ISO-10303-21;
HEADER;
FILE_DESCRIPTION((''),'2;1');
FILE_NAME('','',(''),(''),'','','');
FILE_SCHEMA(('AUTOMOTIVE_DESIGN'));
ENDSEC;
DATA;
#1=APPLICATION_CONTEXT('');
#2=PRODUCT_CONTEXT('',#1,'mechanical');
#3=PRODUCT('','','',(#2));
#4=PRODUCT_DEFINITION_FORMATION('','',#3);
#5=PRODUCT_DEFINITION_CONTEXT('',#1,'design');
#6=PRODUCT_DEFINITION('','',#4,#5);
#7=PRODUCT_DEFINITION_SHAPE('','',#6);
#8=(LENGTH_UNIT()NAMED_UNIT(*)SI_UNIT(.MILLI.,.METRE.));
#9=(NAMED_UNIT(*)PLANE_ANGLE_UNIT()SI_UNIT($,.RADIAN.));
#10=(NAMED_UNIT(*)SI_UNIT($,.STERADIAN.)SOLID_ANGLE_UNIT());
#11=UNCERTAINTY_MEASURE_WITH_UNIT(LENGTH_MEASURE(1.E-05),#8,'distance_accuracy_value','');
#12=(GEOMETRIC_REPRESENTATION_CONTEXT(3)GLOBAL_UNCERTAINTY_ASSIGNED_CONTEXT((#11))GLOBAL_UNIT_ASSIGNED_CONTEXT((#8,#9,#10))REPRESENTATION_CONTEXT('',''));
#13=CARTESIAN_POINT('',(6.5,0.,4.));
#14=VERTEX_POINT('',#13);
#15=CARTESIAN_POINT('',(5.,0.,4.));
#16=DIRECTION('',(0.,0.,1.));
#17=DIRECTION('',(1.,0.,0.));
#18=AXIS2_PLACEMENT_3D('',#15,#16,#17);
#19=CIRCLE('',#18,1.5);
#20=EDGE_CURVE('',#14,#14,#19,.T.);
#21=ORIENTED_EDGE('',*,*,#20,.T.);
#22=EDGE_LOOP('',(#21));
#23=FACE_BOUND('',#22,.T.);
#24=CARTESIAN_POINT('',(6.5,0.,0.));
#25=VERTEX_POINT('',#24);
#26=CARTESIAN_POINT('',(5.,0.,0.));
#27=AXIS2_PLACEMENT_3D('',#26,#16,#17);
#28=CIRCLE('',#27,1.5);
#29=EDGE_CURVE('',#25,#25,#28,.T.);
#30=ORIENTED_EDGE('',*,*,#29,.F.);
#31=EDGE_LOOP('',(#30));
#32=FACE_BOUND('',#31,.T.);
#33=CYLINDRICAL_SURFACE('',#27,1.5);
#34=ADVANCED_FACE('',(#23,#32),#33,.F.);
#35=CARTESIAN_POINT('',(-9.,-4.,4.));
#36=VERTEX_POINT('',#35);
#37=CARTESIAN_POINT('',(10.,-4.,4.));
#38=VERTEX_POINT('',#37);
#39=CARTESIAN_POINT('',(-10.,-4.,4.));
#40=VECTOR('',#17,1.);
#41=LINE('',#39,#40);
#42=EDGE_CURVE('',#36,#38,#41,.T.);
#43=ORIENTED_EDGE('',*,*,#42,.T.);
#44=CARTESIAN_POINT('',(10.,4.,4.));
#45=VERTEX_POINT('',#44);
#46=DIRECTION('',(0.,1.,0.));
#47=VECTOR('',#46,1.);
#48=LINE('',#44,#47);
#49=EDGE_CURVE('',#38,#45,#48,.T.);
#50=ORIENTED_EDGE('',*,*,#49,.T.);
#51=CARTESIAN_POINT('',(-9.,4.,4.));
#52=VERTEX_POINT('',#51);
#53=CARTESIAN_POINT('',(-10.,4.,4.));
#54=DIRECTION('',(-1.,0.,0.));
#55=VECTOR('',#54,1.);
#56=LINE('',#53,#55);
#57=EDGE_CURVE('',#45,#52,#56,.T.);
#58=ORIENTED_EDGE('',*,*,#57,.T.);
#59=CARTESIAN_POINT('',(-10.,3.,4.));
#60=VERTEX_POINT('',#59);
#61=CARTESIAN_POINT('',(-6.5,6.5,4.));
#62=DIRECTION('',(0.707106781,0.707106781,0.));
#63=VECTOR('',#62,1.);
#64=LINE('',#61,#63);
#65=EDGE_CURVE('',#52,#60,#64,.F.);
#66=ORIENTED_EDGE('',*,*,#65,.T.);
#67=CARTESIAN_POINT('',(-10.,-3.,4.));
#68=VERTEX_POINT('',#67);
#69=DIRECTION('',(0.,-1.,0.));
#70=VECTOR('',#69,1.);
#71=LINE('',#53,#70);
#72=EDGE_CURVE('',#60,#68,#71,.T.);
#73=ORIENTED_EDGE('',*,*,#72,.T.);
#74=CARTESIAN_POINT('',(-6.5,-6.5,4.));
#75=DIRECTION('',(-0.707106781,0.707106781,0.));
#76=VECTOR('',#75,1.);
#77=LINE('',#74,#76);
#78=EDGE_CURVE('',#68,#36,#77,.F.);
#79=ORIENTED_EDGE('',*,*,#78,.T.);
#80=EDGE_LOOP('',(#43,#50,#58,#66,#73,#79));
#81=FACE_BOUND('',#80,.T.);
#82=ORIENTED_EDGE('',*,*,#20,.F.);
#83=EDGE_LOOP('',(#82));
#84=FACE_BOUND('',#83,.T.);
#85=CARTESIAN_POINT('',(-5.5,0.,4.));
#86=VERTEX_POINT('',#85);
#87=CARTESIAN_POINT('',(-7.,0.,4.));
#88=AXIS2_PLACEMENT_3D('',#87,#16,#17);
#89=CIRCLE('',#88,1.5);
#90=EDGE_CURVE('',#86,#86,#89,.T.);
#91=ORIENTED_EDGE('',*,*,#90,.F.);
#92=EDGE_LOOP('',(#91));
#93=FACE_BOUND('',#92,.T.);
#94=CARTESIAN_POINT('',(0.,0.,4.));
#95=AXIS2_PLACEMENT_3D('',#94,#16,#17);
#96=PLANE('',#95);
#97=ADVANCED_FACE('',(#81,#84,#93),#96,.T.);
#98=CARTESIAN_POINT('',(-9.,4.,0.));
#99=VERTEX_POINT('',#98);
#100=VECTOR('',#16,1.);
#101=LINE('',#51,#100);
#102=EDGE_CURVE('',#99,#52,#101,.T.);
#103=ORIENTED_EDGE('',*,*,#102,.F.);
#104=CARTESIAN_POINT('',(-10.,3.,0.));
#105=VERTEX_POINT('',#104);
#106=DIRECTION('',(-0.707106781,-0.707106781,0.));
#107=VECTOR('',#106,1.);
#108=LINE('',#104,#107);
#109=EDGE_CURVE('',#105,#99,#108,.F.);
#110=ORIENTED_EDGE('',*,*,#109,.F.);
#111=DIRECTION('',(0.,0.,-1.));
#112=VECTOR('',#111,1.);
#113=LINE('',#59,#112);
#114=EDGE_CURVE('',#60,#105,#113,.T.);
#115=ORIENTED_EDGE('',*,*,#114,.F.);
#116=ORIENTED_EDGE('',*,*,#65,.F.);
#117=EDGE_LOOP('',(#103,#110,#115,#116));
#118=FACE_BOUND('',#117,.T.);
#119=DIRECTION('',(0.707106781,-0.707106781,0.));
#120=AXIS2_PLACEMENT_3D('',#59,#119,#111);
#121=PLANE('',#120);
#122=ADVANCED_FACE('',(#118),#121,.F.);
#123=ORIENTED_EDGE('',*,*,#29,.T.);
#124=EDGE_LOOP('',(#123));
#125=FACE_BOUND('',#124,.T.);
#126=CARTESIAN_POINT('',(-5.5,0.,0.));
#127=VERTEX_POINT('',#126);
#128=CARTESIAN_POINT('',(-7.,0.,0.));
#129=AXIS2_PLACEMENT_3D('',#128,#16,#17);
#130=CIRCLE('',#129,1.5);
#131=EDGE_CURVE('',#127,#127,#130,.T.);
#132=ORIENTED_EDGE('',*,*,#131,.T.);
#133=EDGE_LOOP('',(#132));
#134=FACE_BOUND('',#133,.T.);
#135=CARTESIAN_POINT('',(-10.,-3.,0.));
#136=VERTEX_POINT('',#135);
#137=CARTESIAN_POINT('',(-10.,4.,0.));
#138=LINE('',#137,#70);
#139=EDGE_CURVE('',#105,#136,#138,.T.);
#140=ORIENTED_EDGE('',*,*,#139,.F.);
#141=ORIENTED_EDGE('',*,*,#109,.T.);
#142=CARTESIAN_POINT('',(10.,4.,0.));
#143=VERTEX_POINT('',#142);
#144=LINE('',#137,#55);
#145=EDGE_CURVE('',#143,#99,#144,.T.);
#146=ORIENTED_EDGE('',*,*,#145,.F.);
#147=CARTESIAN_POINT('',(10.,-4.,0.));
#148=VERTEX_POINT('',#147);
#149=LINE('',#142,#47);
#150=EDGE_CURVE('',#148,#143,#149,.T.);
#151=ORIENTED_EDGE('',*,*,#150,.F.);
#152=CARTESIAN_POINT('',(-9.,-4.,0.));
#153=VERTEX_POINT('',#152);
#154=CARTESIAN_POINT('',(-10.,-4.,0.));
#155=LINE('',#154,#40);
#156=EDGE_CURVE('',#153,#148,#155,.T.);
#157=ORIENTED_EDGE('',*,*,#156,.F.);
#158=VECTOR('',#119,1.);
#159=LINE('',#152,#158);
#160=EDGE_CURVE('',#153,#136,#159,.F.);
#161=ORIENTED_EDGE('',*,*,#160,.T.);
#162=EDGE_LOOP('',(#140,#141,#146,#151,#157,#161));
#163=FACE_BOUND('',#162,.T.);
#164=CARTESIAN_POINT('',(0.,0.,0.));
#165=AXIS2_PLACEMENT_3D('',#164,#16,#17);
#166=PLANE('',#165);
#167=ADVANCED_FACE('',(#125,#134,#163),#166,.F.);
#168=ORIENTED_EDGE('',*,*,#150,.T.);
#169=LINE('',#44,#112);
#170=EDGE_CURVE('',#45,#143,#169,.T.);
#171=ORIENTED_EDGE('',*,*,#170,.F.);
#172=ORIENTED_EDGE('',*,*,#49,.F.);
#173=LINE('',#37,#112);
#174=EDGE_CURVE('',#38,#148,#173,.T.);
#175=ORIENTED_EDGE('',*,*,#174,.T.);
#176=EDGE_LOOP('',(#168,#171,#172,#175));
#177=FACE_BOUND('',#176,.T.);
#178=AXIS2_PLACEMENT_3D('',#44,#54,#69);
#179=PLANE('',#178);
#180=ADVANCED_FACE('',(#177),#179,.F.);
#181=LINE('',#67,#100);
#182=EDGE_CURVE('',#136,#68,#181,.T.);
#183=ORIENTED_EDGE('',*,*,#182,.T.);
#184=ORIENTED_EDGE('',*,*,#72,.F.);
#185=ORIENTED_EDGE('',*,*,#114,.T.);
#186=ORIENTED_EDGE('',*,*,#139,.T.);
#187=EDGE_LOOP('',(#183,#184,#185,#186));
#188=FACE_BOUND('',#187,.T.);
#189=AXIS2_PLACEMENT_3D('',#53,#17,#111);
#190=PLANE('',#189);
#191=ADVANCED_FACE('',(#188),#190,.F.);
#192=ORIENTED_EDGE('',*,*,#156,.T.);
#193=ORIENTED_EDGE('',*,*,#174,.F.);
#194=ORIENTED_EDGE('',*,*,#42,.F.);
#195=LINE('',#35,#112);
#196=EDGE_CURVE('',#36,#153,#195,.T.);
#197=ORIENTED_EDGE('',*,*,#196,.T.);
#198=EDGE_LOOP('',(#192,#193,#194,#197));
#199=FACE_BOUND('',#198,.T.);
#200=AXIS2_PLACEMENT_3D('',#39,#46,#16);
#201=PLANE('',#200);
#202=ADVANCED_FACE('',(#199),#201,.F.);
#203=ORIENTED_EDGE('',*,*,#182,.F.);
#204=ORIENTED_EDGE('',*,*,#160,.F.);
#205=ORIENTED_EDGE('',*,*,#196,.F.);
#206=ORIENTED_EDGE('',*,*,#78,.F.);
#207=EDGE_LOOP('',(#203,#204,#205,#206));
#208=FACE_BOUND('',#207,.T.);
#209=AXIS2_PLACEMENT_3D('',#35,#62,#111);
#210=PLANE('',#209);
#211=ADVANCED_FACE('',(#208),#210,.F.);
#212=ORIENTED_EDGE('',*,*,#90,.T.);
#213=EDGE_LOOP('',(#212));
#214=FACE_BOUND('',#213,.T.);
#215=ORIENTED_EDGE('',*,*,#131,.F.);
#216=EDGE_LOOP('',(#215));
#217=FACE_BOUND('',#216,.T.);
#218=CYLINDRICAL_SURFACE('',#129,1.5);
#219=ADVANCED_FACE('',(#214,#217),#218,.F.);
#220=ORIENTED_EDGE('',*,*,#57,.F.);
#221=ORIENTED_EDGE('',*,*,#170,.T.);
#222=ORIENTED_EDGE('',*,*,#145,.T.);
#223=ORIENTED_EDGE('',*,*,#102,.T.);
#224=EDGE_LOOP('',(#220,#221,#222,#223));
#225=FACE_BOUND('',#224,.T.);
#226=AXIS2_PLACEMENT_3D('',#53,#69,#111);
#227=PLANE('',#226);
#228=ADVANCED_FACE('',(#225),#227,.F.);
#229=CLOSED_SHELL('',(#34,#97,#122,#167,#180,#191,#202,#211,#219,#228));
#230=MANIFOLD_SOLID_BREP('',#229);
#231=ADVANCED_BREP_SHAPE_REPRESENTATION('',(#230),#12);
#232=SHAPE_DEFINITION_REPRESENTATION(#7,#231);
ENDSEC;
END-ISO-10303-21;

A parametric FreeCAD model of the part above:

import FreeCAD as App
import Part
import Sketcher
from FreeCAD import Vector


def edges_at(feature, points):
    """Names of the edges that pass closest to the given points."""
    edges = feature.Shape.Edges
    near = lambda p: min(range(len(edges)), key=lambda i: edges[i].distToShape(Part.Vertex(*p))[0])
    return sorted({f"Edge{near(p) + 1}" for p in points})


def add_polygon(sketch, points):
    """Adds a closed chain of lines whose ends are joined by coincident constraints."""
    first, n = sketch.GeometryCount, len(points)
    for a, b in zip(points, points[1:] + points[:1]):
        sketch.addGeometry(Part.LineSegment(App.Vector(*a, 0), App.Vector(*b, 0)), False)
    for i in range(n):
        sketch.addConstraint(Sketcher.Constraint("Coincident", first + i, 2, first + (i + 1) % n, 1))

doc = App.newDocument("Part")
body = doc.addObject("PartDesign::Body", "Body")

sketch1 = body.newObject("Sketcher::SketchObject", "Sketch")
sketch1.AttachmentSupport = (doc.getObject("XY_Plane"), [""])
sketch1.MapMode = "FlatFace"
add_polygon(sketch1, [(-10, 4), (-10, -4), (10, -4), (10, 4)])
sketch1.addConstraint(Sketcher.Constraint("Vertical", 0))
sketch1.addConstraint(Sketcher.Constraint("Horizontal", 1))
sketch1.addConstraint(Sketcher.Constraint("Vertical", 2))
sketch1.addConstraint(Sketcher.Constraint("Horizontal", 3))
sketch1.addConstraint(Sketcher.Constraint("Symmetric", 0, 2, 2, 2, -1, 1))
sketch1.addConstraint(Sketcher.Constraint("DistanceX", 1, 1, 1, 2, 20.0))
sketch1.addConstraint(Sketcher.Constraint("DistanceY", 0, 2, 0, 1, 8.0))
pad1 = body.newObject("PartDesign::Pad", "Pad")
pad1.Profile = sketch1
pad1.Length = 4
doc.recompute()

chamfer = body.newObject("PartDesign::Chamfer", "Chamfer")
chamfer.Base = (pad1, edges_at(pad1, [(-10, -4, 2), (-10, 4, 2)]))
chamfer.Size = 1

sketch2 = body.newObject("Sketcher::SketchObject", "Sketch001")
sketch2.AttachmentSupport = (doc.getObject("XY_Plane"), [""])
sketch2.MapMode = "FlatFace"
sketch2.AttachmentOffset = App.Placement(Vector(0, 0, 4), App.Rotation())
sketch2.addGeometry(Part.Circle(Vector(-7, 0, 0), Vector(0, 0, 1), 1.5), False)
sketch2.addGeometry(Part.Circle(Vector(5, 0, 0), Vector(0, 0, 1), 1.5), False)
sketch2.addConstraint(Sketcher.Constraint("Equal", 0, 1))
sketch2.addConstraint(Sketcher.Constraint("PointOnObject", 0, 3, -1))
sketch2.addConstraint(Sketcher.Constraint("PointOnObject", 1, 3, -1))
sketch2.addConstraint(Sketcher.Constraint("Diameter", 0, 3.0))
sketch2.addConstraint(Sketcher.Constraint("DistanceX", 0, 3, -1, 1, 7.0))
sketch2.addConstraint(Sketcher.Constraint("DistanceX", -1, 1, 1, 3, 5.0))
pocket1 = body.newObject("PartDesign::Pocket", "Pocket")
pocket1.Profile = sketch2
pocket1.Length = 4

doc.recompute()
